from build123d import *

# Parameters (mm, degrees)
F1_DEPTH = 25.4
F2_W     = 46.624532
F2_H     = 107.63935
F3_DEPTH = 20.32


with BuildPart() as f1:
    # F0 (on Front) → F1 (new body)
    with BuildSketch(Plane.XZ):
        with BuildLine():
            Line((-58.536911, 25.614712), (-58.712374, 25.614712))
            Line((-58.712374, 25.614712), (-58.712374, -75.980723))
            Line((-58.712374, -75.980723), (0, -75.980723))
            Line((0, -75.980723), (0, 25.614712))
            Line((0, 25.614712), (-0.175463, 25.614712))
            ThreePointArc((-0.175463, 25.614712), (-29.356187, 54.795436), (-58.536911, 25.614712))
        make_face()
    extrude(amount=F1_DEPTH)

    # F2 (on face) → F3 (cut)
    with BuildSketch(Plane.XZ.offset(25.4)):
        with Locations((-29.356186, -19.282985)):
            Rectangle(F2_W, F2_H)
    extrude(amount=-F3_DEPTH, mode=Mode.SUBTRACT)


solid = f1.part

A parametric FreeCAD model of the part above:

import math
import FreeCAD as App
import Part
import Sketcher

V = App.Vector
Q = App.Units.Quantity


def add_polygon(sketch, points):
    """Adds a closed chain of lines whose ends are joined by coincident constraints."""
    first, n = sketch.GeometryCount, len(points)
    for a, b in zip(points, points[1:] + points[:1]):
        sketch.addGeometry(Part.LineSegment(App.Vector(*a, 0), App.Vector(*b, 0)), False)
    for i in range(n):
        sketch.addConstraint(Sketcher.Constraint("Coincident", first + i, 2, first + (i + 1) % n, 1))

doc = App.newDocument("Part")
body = doc.addObject("PartDesign::Body", "Body")

sketch1 = doc.addObject("Sketcher::SketchObject", "Sketch")
body.addObject(sketch1)
sketch1.AttachmentSupport = (doc.XZ_Plane, [""])
sketch1.MapMode = "FlatFace"
sketch1.addGeometry(Part.LineSegment(V(-58.536911, 25.614712, 0), V(-58.712374, 25.614712, 0)), False)
sketch1.addGeometry(Part.LineSegment(V(-58.712374, 25.614712, 0), V(-58.712374, -75.980723, 0)), False)
sketch1.addGeometry(Part.LineSegment(V(-58.712374, -75.980723, 0), V(0, -75.980723, 0)), False)
sketch1.addGeometry(Part.LineSegment(V(0, -75.980723, 0), V(0, 25.614712, 0)), False)
sketch1.addGeometry(Part.LineSegment(V(0, 25.614712, 0), V(-0.175463, 25.614712, 0)), False)
sketch1.addGeometry(Part.ArcOfCircle(Part.Circle(V(-29.356187, 25.614712, 0), V(0, 0, 1), 29.180724), math.radians(0), math.radians(180)), False)
sketch1.addConstraint(Sketcher.Constraint("Coincident", 0, 2, 1, 1))
sketch1.addConstraint(Sketcher.Constraint("Coincident", 1, 2, 2, 1))
sketch1.addConstraint(Sketcher.Constraint("Coincident", 2, 2, 3, 1))
sketch1.addConstraint(Sketcher.Constraint("Coincident", 3, 2, 4, 1))
sketch1.addConstraint(Sketcher.Constraint("Coincident", 4, 2, 5, 1))
sketch1.addConstraint(Sketcher.Constraint("Coincident", 5, 2, 0, 1))
sketch1.addConstraint(Sketcher.Constraint("Horizontal", 0))
sketch1.addConstraint(Sketcher.Constraint("Vertical", 1))
sketch1.addConstraint(Sketcher.Constraint("Horizontal", 2))
sketch1.addConstraint(Sketcher.Constraint("Vertical", 3))
sketch1.addConstraint(Sketcher.Constraint("Horizontal", 4))
sketch1.addConstraint(Sketcher.Constraint("PointOnObject", 2, 2, -2))
sketch1.addConstraint(Sketcher.Constraint("Horizontal", 5, 3, 0, 2))
sketch1.addConstraint(Sketcher.Constraint("Horizontal", 0, 2, 3, 2))
sketch1.addConstraint(Sketcher.Constraint("Equal", 0, 4))
sketch1.addConstraint(Sketcher.Constraint("Radius", 5, 29.180724))
sketch1.addConstraint(Sketcher.Constraint("DistanceX", 0, 2, 0, 1, 0.175463))
sketch1.addConstraint(Sketcher.Constraint("DistanceY", 1, 2, 1, 1, 101.595435))
sketch1.addConstraint(Sketcher.Constraint("DistanceY", -1, 1, 5, 3, 25.614712))
pad1 = doc.addObject("PartDesign::Pad", "Pad")
body.addObject(pad1)
pad1.Profile = sketch1
pad1.Length = Q("1 in")

sketch2 = doc.addObject("Sketcher::SketchObject", "Sketch001")
body.addObject(sketch2)
sketch2.AttachmentSupport = (doc.XZ_Plane, [""])
sketch2.MapMode = "FlatFace"
sketch2.AttachmentOffset = App.Placement(V(0, 0, 1 * 25.4), App.Rotation())
add_polygon(sketch2, [(-52.668452, 34.53669), (-52.668452, -73.10266), (-6.04392, -73.10266), (-6.04392, 34.53669)])
sketch2.addConstraint(Sketcher.Constraint("Vertical", 0))
sketch2.addConstraint(Sketcher.Constraint("Horizontal", 1))
sketch2.addConstraint(Sketcher.Constraint("Vertical", 2))
sketch2.addConstraint(Sketcher.Constraint("Horizontal", 3))
sketch2.addConstraint(Sketcher.Constraint("DistanceY", 0, 2, 0, 1, 107.63935))
sketch2.addConstraint(Sketcher.Constraint("DistanceX", 1, 1, 1, 2, 46.624532))
sketch2.addConstraint(Sketcher.Constraint("DistanceY", 0, 2, -1, 1, 73.10266))
sketch2.addConstraint(Sketcher.Constraint("DistanceX", 1, 2, -1, 1, 6.04392))
pocket1 = doc.addObject("PartDesign::Pocket", "Pocket")
body.addObject(pocket1)
pocket1.Profile = sketch2
pocket1.Length = Q("0.8 in")

doc.recompute()
